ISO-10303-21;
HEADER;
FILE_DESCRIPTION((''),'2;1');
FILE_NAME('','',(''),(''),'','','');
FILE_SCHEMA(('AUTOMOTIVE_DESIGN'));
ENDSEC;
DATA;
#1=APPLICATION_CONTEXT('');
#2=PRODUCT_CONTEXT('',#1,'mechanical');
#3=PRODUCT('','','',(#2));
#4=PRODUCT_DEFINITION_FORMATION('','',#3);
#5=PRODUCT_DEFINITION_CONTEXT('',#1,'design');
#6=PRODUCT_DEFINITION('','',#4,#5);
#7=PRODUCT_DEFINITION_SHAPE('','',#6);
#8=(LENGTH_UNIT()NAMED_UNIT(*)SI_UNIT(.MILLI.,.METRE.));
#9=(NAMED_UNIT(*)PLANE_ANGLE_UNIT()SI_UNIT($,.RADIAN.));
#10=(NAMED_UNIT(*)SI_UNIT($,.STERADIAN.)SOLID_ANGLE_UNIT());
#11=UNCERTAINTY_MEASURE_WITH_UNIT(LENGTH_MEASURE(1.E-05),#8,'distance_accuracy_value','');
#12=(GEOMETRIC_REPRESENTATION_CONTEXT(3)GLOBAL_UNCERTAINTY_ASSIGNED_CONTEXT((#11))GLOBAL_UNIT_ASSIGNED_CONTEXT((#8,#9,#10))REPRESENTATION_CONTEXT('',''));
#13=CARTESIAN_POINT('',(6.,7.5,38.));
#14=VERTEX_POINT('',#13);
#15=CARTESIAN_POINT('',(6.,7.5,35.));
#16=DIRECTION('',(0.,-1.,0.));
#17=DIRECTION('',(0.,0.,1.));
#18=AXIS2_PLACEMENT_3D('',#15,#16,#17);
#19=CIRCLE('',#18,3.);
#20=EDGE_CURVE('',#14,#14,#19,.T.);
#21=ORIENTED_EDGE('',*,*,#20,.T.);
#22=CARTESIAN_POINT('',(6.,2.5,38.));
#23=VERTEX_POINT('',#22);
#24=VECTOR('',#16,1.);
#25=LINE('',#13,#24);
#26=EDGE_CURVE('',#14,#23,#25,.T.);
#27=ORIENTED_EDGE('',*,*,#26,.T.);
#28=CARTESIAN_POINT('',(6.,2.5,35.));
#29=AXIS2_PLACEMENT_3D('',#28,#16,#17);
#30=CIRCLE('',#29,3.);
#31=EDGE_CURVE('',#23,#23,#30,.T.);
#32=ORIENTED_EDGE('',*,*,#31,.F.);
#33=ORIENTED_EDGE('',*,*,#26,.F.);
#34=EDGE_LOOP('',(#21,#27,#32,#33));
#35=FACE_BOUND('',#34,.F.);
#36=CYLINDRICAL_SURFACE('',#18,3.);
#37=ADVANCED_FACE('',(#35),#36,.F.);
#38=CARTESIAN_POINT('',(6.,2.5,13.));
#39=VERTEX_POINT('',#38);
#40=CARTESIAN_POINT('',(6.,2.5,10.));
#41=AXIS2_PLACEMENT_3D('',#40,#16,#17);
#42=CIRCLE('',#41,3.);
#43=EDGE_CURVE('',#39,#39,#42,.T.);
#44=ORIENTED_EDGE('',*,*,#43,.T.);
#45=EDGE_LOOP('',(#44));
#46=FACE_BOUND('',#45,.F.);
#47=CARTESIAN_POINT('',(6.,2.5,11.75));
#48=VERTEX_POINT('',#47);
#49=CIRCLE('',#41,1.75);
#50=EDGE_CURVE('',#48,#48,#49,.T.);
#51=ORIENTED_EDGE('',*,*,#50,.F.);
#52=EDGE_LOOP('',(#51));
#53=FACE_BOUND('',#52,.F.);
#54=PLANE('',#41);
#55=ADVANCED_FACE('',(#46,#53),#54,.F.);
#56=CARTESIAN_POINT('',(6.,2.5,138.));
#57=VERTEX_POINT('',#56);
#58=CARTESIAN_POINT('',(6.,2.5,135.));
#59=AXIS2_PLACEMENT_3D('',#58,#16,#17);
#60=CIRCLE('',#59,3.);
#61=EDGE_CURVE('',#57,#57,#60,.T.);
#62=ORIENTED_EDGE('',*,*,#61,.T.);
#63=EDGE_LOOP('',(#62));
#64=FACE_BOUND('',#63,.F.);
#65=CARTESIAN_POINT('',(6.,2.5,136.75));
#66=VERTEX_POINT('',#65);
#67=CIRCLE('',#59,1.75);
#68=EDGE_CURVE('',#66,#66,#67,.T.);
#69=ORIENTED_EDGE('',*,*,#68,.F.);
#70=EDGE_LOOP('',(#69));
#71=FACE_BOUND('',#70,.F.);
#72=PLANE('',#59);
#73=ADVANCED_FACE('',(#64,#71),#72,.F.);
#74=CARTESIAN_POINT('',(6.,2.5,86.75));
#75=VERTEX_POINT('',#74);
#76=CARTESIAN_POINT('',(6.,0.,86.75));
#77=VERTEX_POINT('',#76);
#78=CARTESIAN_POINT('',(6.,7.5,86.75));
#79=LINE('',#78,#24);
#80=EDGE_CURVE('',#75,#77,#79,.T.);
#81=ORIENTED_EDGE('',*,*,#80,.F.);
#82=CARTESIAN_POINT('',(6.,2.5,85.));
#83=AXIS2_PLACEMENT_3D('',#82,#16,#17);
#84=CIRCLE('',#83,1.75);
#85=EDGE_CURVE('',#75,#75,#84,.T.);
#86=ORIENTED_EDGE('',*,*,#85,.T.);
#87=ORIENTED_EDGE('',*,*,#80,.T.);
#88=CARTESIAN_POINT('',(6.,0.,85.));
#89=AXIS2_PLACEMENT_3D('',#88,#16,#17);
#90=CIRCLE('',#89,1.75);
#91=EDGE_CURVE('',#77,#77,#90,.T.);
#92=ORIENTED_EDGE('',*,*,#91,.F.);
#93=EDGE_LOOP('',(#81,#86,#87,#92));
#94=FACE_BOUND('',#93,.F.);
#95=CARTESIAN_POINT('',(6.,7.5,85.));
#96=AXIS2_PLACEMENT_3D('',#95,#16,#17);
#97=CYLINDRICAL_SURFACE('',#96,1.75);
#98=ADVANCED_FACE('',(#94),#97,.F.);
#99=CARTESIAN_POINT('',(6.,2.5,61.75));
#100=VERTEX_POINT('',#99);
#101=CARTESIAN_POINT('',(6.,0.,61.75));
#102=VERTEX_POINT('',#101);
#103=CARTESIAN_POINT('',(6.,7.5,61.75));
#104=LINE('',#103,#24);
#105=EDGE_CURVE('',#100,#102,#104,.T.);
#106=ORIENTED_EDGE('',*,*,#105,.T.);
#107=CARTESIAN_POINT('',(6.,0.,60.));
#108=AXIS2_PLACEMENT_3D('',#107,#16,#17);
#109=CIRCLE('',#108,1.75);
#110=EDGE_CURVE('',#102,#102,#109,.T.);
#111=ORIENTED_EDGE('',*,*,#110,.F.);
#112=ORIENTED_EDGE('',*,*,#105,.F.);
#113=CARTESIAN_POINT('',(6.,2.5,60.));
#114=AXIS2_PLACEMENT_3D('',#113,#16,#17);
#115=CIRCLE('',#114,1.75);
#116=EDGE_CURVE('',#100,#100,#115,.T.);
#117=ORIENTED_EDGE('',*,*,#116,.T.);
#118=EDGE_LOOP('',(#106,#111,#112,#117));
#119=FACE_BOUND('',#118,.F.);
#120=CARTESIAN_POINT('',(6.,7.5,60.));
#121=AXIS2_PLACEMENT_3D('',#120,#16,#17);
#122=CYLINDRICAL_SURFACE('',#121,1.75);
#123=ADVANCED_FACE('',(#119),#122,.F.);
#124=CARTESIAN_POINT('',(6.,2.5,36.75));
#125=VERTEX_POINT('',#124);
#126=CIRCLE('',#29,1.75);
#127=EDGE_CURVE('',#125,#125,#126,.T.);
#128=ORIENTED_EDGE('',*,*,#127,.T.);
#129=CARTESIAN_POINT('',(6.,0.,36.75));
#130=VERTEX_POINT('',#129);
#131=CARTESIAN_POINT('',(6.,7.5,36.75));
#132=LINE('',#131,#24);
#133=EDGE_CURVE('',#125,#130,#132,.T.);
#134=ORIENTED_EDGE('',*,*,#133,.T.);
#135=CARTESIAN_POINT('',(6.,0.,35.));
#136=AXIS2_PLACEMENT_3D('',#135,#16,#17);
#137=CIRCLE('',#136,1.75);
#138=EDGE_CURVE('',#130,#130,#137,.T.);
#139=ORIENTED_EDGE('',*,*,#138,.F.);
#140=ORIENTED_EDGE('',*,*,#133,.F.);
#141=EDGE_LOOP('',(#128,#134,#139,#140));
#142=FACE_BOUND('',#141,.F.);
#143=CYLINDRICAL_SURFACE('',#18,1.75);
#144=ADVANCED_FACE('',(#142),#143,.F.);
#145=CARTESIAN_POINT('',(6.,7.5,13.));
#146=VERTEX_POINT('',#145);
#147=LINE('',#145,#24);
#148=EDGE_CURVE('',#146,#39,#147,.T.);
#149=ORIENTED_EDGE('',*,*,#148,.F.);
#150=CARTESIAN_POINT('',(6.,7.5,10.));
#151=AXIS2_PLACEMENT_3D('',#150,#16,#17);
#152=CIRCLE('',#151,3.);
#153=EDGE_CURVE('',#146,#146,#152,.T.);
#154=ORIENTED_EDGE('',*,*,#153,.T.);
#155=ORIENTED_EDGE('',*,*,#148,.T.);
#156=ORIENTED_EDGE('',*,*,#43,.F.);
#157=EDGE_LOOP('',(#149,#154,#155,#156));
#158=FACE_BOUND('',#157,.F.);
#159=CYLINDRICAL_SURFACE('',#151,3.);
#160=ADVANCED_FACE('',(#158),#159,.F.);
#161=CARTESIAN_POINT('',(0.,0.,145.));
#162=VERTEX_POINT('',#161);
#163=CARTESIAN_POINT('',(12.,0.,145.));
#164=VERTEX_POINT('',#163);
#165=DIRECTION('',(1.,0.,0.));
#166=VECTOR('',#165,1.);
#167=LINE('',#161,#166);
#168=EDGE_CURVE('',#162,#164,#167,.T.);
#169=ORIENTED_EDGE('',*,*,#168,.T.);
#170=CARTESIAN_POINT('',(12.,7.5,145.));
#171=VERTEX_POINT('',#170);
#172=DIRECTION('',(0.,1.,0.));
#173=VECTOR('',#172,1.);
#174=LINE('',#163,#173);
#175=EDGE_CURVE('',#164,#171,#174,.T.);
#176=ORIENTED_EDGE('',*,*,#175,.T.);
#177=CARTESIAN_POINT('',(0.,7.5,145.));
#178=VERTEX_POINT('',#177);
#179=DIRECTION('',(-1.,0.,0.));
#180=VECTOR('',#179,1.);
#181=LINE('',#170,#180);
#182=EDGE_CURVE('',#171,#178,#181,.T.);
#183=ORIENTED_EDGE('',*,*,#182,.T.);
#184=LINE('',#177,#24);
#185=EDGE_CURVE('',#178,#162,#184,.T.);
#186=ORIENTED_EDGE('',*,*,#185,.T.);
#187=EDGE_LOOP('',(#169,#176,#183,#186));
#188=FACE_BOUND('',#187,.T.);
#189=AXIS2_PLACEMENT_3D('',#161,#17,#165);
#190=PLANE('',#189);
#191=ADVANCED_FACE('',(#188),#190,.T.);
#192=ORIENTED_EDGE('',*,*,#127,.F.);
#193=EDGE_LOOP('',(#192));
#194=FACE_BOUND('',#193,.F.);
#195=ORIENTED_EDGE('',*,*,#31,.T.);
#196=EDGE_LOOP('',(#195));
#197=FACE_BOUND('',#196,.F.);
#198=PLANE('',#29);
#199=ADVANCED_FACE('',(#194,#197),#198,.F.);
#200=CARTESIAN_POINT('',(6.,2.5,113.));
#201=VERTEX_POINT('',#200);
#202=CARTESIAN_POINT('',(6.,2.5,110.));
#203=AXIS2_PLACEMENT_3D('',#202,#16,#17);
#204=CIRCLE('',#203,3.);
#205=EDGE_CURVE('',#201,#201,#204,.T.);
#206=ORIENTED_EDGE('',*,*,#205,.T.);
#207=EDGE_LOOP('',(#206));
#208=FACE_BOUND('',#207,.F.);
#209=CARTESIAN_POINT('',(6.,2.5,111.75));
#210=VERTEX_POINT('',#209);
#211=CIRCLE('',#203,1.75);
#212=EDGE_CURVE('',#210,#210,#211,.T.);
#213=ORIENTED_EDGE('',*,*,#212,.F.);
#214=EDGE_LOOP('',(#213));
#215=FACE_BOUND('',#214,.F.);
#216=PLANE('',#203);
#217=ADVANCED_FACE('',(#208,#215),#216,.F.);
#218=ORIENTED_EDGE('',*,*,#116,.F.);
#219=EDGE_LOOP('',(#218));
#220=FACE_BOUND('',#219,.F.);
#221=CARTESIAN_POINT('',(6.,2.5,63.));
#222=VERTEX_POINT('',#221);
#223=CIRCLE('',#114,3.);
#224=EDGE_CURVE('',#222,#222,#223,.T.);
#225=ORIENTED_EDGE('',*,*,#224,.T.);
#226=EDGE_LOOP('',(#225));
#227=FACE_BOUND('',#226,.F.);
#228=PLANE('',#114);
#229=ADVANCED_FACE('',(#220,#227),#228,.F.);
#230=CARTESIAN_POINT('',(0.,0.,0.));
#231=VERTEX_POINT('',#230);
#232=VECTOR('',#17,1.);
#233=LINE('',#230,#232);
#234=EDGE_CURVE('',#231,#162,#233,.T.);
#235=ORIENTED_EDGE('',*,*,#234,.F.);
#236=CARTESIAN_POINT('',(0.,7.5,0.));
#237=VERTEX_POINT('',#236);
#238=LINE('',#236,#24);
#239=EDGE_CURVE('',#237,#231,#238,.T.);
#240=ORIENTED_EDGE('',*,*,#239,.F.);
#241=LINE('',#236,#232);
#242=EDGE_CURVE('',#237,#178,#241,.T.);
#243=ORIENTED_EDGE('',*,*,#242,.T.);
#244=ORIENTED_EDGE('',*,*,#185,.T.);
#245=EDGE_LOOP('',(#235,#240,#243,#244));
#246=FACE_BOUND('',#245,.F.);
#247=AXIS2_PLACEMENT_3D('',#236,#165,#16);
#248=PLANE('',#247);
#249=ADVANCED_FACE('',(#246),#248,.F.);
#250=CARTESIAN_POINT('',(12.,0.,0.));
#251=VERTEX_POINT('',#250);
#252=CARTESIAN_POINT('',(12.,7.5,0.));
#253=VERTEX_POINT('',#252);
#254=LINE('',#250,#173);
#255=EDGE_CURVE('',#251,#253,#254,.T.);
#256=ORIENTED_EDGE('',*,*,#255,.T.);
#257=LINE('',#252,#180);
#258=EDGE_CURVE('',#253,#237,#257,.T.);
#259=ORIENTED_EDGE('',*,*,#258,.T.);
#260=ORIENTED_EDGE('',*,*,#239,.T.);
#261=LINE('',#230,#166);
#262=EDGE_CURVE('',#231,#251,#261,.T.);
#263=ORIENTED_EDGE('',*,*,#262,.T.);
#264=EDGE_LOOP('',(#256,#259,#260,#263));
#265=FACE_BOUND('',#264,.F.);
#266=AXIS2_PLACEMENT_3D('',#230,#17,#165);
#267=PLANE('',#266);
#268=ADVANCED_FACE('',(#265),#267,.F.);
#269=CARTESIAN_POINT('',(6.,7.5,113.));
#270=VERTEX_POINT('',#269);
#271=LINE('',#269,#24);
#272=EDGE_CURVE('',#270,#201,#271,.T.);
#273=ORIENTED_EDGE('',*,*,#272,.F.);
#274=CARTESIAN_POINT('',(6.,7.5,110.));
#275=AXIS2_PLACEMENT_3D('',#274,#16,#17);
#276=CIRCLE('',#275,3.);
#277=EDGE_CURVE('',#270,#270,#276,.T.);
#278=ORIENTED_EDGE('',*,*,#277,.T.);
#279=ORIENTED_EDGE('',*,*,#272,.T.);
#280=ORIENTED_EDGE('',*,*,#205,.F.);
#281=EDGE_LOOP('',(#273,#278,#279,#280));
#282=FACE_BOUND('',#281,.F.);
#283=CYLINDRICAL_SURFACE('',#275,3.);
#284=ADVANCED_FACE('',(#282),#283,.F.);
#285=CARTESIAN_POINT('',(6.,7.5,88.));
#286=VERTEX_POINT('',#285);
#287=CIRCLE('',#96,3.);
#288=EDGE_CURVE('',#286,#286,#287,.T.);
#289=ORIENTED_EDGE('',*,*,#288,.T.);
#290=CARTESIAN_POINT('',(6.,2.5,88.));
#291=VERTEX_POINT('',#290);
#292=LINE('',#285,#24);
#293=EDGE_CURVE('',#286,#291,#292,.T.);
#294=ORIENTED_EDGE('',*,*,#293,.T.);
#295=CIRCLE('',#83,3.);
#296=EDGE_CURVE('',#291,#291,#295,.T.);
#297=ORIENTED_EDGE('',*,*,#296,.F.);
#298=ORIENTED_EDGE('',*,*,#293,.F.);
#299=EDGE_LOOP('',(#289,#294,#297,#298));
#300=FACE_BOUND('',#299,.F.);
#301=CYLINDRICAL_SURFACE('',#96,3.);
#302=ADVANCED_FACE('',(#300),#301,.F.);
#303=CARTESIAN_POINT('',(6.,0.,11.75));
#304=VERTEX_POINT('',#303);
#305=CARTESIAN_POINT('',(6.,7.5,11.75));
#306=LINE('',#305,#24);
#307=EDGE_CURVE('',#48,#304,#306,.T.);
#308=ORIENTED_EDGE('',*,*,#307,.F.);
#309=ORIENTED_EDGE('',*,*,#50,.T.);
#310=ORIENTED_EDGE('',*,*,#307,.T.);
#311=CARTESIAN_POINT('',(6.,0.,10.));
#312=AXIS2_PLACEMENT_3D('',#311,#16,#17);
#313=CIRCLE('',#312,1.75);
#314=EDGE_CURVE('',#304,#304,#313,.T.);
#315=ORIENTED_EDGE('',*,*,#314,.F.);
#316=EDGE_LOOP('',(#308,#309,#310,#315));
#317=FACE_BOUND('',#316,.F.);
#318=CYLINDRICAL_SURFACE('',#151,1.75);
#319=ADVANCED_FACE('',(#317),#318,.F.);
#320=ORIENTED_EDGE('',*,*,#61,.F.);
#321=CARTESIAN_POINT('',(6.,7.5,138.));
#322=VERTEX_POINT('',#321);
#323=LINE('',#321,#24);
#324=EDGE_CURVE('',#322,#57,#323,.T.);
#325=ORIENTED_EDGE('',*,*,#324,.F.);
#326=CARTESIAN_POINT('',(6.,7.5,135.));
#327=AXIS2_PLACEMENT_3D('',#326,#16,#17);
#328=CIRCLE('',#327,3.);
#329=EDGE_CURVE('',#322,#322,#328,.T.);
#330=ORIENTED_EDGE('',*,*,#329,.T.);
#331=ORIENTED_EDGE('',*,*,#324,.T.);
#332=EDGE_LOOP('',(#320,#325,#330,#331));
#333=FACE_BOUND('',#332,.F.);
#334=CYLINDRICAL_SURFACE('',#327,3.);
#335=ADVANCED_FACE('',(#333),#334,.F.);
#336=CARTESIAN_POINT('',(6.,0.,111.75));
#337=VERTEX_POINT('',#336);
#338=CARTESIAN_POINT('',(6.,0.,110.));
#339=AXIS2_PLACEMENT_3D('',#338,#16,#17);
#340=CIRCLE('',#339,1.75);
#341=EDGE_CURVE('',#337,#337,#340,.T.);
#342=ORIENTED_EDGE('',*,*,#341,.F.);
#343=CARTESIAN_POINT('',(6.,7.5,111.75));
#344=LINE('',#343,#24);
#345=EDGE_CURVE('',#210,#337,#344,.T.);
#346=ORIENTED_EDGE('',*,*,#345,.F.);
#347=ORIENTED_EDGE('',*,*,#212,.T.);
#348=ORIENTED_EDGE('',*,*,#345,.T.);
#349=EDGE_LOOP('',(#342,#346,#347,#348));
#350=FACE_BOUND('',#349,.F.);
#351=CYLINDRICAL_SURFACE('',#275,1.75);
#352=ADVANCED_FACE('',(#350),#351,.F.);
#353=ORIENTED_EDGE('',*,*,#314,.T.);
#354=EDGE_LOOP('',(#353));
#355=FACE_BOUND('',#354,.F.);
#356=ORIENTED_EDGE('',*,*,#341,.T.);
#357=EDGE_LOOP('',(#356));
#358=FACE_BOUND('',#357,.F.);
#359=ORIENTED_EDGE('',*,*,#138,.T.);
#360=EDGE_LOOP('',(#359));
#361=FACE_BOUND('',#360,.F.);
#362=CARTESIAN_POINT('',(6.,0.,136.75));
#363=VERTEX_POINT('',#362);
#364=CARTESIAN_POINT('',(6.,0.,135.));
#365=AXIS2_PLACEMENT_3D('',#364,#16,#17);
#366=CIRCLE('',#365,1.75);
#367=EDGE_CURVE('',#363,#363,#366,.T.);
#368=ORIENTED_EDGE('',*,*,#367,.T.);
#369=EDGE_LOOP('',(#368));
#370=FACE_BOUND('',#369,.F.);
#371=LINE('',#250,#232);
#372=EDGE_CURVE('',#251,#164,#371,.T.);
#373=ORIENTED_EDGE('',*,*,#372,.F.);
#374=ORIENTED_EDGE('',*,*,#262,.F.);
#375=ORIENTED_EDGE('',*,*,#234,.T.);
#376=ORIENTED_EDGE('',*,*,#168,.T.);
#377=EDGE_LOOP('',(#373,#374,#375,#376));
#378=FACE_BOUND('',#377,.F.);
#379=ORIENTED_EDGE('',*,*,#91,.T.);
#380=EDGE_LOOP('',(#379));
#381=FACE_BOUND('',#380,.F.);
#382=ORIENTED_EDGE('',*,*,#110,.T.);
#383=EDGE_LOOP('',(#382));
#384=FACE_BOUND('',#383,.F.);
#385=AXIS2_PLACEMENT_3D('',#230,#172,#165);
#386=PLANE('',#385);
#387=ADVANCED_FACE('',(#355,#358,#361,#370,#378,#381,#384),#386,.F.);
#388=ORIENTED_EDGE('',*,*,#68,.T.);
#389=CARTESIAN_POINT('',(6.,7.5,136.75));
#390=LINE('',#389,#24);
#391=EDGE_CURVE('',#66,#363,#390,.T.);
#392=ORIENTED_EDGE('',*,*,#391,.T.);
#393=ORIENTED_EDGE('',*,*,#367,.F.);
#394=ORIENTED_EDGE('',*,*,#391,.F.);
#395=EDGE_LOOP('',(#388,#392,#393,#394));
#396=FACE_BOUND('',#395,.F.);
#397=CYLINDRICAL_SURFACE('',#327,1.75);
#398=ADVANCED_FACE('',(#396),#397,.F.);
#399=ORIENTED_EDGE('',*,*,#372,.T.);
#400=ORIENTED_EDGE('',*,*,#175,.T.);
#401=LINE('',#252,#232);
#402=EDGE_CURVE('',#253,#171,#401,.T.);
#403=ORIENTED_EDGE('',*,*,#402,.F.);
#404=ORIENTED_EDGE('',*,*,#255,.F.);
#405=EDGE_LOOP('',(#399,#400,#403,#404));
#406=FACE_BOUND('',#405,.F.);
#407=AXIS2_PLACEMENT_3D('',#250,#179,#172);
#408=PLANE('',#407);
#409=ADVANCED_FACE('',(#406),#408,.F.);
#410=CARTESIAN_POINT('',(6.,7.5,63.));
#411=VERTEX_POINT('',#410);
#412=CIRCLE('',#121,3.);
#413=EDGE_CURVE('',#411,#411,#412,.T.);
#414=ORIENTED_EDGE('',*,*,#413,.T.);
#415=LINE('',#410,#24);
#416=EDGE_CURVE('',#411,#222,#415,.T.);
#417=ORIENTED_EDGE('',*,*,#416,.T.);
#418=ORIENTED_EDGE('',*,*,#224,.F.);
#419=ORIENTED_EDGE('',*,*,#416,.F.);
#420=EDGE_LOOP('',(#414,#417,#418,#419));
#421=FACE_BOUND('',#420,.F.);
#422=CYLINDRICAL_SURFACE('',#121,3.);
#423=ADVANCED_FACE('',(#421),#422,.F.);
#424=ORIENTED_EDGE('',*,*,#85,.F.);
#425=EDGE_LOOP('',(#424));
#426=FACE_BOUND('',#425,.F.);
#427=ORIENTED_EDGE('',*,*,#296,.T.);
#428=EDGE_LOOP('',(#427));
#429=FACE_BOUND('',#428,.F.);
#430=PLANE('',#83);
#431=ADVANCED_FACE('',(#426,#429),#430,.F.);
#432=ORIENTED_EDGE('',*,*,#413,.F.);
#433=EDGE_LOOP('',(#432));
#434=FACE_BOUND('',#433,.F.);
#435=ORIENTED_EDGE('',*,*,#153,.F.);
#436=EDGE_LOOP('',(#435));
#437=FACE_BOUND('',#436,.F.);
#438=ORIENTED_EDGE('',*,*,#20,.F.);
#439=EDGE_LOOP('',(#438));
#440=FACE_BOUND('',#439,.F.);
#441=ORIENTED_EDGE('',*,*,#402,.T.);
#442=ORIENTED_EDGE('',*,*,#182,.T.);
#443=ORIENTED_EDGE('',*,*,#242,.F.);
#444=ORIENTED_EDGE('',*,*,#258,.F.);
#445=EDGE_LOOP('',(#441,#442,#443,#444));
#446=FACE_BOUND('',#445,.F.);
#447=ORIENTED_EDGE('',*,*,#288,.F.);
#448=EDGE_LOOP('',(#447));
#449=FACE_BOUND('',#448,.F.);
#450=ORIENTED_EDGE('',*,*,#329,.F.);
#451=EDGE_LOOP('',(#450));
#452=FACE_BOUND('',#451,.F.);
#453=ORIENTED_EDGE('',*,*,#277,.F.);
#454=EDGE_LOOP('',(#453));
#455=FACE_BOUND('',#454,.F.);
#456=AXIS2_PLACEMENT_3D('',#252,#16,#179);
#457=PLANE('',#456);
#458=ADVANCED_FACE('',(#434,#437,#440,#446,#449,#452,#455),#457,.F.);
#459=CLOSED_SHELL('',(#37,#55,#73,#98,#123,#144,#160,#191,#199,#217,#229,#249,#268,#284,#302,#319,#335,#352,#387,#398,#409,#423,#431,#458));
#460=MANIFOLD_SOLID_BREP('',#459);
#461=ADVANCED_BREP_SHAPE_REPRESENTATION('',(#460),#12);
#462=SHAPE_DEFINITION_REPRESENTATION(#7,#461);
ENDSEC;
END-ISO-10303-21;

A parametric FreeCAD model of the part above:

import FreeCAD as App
import Part
import Sketcher
Q = App.Units.Quantity


def add_polygon(sketch, points):
    """Adds a closed chain of lines whose ends are joined by coincident constraints."""
    first, n = sketch.GeometryCount, len(points)
    for a, b in zip(points, points[1:] + points[:1]):
        sketch.addGeometry(Part.LineSegment(App.Vector(*a, 0), App.Vector(*b, 0)), False)
    for i in range(n):
        sketch.addConstraint(Sketcher.Constraint("Coincident", first + i, 2, first + (i + 1) % n, 1))

doc = App.newDocument("Part")
body = doc.addObject("PartDesign::Body", "Body")

sketch1 = body.newObject("Sketcher::SketchObject", "Sketch")
sketch1.AttachmentSupport = (doc.getObject("XY_Plane"), [""])
sketch1.MapMode = "FlatFace"
add_polygon(sketch1, [(0, 7.5), (0, 0), (12, 0), (12, 7.5)])
sketch1.addConstraint(Sketcher.Constraint("Vertical", 0))
sketch1.addConstraint(Sketcher.Constraint("Horizontal", 1))
sketch1.addConstraint(Sketcher.Constraint("Vertical", 2))
sketch1.addConstraint(Sketcher.Constraint("Horizontal", 3))
sketch1.addConstraint(Sketcher.Constraint("Coincident", 0, 2, -1, 1))
sketch1.addConstraint(Sketcher.Constraint("DistanceX", 1, 1, 1, 2, Q("12 mm")))
sketch1.addConstraint(Sketcher.Constraint("DistanceY", 0, 2, 0, 1, Q("7.5 mm")))
pad1 = body.newObject("PartDesign::Pad", "Pad")
pad1.Profile = sketch1
pad1.Length = 145

sketch2 = body.newObject("Sketcher::SketchObject", "Sketch001")
sketch2.AttachmentSupport = (doc.getObject("XZ_Plane"), [""])
sketch2.MapMode = "FlatFace"
sketch2.AttachmentOffset = App.Placement(App.Vector(0, 0, -7.5), App.Rotation())
sketch2.addGeometry(Part.Circle(App.Vector(6, 10, 0), App.Vector(0, 0, 1), 1.75), False)
sketch2.addGeometry(Part.Circle(App.Vector(6, 135, 0), App.Vector(0, 0, 1), 1.75), False)
sketch2.addGeometry(Part.Circle(App.Vector(6, 110, 0), App.Vector(0, 0, 1), 1.75), False)
sketch2.addGeometry(Part.Circle(App.Vector(6, 85, 0), App.Vector(0, 0, 1), 1.75), False)
sketch2.addGeometry(Part.Circle(App.Vector(6, 60, 0), App.Vector(0, 0, 1), 1.75), False)
sketch2.addGeometry(Part.Circle(App.Vector(6, 35, 0), App.Vector(0, 0, 1), 1.75), False)
sketch2.addConstraint(Sketcher.Constraint("Equal", 0, 1))
sketch2.addConstraint(Sketcher.Constraint("Equal", 1, 2))
sketch2.addConstraint(Sketcher.Constraint("Equal", 2, 3))
sketch2.addConstraint(Sketcher.Constraint("Equal", 3, 4))
sketch2.addConstraint(Sketcher.Constraint("Equal", 4, 5))
sketch2.addConstraint(Sketcher.Constraint("Vertical", 0, 3, 1, 3))
sketch2.addConstraint(Sketcher.Constraint("Vertical", 1, 3, 2, 3))
sketch2.addConstraint(Sketcher.Constraint("Vertical", 2, 3, 3, 3))
sketch2.addConstraint(Sketcher.Constraint("Vertical", 3, 3, 4, 3))
sketch2.addConstraint(Sketcher.Constraint("Vertical", 4, 3, 5, 3))
sketch2.addConstraint(Sketcher.Constraint("Diameter", 0, Q("3.5 mm")))
sketch2.addConstraint(Sketcher.Constraint("DistanceX", -1, 1, 0, 3, Q("6 mm")))
sketch2.addConstraint(Sketcher.Constraint("DistanceY", -1, 1, 0, 3, Q("10 mm")))
sketch2.addConstraint(Sketcher.Constraint("DistanceY", -1, 1, 1, 3, Q("135 mm")))
sketch2.addConstraint(Sketcher.Constraint("DistanceY", -1, 1, 2, 3, Q("110 mm")))
sketch2.addConstraint(Sketcher.Constraint("DistanceY", -1, 1, 3, 3, Q("85 mm")))
sketch2.addConstraint(Sketcher.Constraint("DistanceY", -1, 1, 4, 3, Q("60 mm")))
sketch2.addConstraint(Sketcher.Constraint("DistanceY", -1, 1, 5, 3, Q("35 mm")))
doc.recompute()
hole = body.newObject("PartDesign::Hole", "Hole")
hole.Profile = sketch2
hole.ThreadType = "None"
hole.Diameter = 3.5
hole.DepthType = "ThroughAll"
hole.Reversed = True

sketch3 = body.newObject("Sketcher::SketchObject", "Sketch002")
sketch3.AttachmentSupport = (doc.getObject("XZ_Plane"), [""])
sketch3.MapMode = "FlatFace"
sketch3.AttachmentOffset = App.Placement(App.Vector(0, 0, -7.5), App.Rotation())
sketch3.addGeometry(Part.Circle(App.Vector(6, 10, 0), App.Vector(0, 0, 1), 3), False)
sketch3.addGeometry(Part.Circle(App.Vector(6, 135, 0), App.Vector(0, 0, 1), 3), False)
sketch3.addGeometry(Part.Circle(App.Vector(6, 110, 0), App.Vector(0, 0, 1), 3), False)
sketch3.addGeometry(Part.Circle(App.Vector(6, 60, 0), App.Vector(0, 0, 1), 3), False)
sketch3.addGeometry(Part.Circle(App.Vector(6, 35, 0), App.Vector(0, 0, 1), 3), False)
sketch3.addGeometry(Part.Circle(App.Vector(6, 85, 0), App.Vector(0, 0, 1), 3), False)
sketch3.addConstraint(Sketcher.Constraint("Equal", 0, 1))
sketch3.addConstraint(Sketcher.Constraint("Equal", 1, 2))
sketch3.addConstraint(Sketcher.Constraint("Equal", 2, 3))
sketch3.addConstraint(Sketcher.Constraint("Equal", 3, 4))
sketch3.addConstraint(Sketcher.Constraint("Equal", 4, 5))
sketch3.addConstraint(Sketcher.Constraint("Vertical", 0, 3, 1, 3))
sketch3.addConstraint(Sketcher.Constraint("Vertical", 1, 3, 2, 3))
sketch3.addConstraint(Sketcher.Constraint("Vertical", 2, 3, 3, 3))
sketch3.addConstraint(Sketcher.Constraint("Vertical", 3, 3, 4, 3))
sketch3.addConstraint(Sketcher.Constraint("Vertical", 4, 3, 5, 3))
sketch3.addConstraint(Sketcher.Constraint("Diameter", 0, Q("6 mm")))
sketch3.addConstraint(Sketcher.Constraint("DistanceX", -1, 1, 0, 3, Q("6 mm")))
sketch3.addConstraint(Sketcher.Constraint("DistanceY", -1, 1, 0, 3, Q("10 mm")))
sketch3.addConstraint(Sketcher.Constraint("DistanceY", -1, 1, 1, 3, Q("135 mm")))
sketch3.addConstraint(Sketcher.Constraint("DistanceY", -1, 1, 2, 3, Q("110 mm")))
sketch3.addConstraint(Sketcher.Constraint("DistanceY", -1, 1, 3, 3, Q("60 mm")))
sketch3.addConstraint(Sketcher.Constraint("DistanceY", -1, 1, 4, 3, Q("35 mm")))
sketch3.addConstraint(Sketcher.Constraint("DistanceY", -1, 1, 5, 3, Q("85 mm")))
doc.recompute()
hole2 = body.newObject("PartDesign::Hole", "Hole001")
hole2.Profile = sketch3
hole2.ThreadType = "None"
hole2.Diameter = 6
hole2.DepthType = "Dimension"
hole2.Depth = 5
hole2.DrillPoint = "Flat"
hole2.Reversed = True

doc.recompute()
